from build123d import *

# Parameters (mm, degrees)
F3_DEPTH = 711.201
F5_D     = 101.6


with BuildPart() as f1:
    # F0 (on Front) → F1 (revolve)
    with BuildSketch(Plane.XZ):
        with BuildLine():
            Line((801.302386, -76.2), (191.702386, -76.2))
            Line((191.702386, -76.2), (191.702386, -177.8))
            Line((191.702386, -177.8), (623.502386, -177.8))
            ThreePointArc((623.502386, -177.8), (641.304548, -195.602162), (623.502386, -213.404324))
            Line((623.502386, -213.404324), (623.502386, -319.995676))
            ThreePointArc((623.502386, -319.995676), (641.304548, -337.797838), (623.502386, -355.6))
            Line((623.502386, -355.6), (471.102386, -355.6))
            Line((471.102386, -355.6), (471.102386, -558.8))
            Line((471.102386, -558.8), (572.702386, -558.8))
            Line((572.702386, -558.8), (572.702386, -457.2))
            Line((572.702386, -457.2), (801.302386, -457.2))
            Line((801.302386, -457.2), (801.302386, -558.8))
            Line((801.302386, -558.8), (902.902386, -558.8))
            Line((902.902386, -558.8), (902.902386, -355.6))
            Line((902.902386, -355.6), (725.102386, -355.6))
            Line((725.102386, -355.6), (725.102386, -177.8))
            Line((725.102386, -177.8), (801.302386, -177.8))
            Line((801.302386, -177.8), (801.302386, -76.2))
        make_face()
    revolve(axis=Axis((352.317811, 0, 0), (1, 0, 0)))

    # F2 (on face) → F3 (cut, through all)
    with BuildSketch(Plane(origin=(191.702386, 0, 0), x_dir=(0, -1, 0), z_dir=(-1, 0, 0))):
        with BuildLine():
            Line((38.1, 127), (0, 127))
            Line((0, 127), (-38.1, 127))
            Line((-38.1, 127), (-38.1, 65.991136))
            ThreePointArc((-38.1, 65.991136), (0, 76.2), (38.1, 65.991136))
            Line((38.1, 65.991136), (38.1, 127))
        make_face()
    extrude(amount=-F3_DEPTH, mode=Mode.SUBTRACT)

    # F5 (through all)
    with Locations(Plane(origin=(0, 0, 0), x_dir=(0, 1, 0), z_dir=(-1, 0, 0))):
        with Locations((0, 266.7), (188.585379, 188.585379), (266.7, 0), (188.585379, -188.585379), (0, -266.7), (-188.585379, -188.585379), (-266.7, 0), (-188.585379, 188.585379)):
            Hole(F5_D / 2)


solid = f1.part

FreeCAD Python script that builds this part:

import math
import FreeCAD as App
import Part
import Sketcher
Q = App.Units.Quantity

doc = App.newDocument("Part")
body = doc.addObject("PartDesign::Body", "Body")

sketch1 = body.newObject("Sketcher::SketchObject", "Sketch")
sketch1.AttachmentSupport = (doc.getObject("XZ_Plane"), [""])
sketch1.MapMode = "FlatFace"
sketch1.addGeometry([
    Part.LineSegment(App.Vector(801, -76, 0), App.Vector(192, -76, 0)),
    Part.LineSegment(App.Vector(192, -76, 0), App.Vector(192, -178, 0)),
    Part.LineSegment(App.Vector(192, -178, 0), App.Vector(624, -178, 0)),
    Part.ArcOfCircle(Part.Circle(App.Vector(624, -196, 0), App.Vector(0, 0, 1), 18), math.radians(-90), math.radians(90)),
    Part.LineSegment(App.Vector(624, -213, 0), App.Vector(624, -320, 0)),
    Part.ArcOfCircle(Part.Circle(App.Vector(624, -338, 0), App.Vector(0, 0, 1), 18), math.radians(-90), math.radians(90)),
    Part.LineSegment(App.Vector(624, -356, 0), App.Vector(471, -356, 0)),
    Part.LineSegment(App.Vector(471, -356, 0), App.Vector(471, -559, 0)),
    Part.LineSegment(App.Vector(471, -559, 0), App.Vector(573, -559, 0)),
    Part.LineSegment(App.Vector(573, -559, 0), App.Vector(573, -457, 0)),
    Part.LineSegment(App.Vector(573, -457, 0), App.Vector(801, -457, 0)),
    Part.LineSegment(App.Vector(801, -457, 0), App.Vector(801, -559, 0)),
    Part.LineSegment(App.Vector(801, -559, 0), App.Vector(903, -559, 0)),
    Part.LineSegment(App.Vector(903, -559, 0), App.Vector(903, -356, 0)),
    Part.LineSegment(App.Vector(903, -356, 0), App.Vector(725, -356, 0)),
    Part.LineSegment(App.Vector(725, -356, 0), App.Vector(725, -178, 0)),
    Part.LineSegment(App.Vector(725, -178, 0), App.Vector(801, -178, 0)),
    Part.LineSegment(App.Vector(801, -178, 0), App.Vector(801, -76, 0)),
], False)
sketch1.addConstraint([
    Sketcher.Constraint("Coincident", 0, 2, 1, 1),
    Sketcher.Constraint("Coincident", 1, 2, 2, 1),
    Sketcher.Constraint("Tangent", 2, 2, 3, 2),
    Sketcher.Constraint("Coincident", 3, 1, 4, 1),
    Sketcher.Constraint("Coincident", 4, 2, 5, 2),
    Sketcher.Constraint("Tangent", 5, 1, 6, 1),
    Sketcher.Constraint("Coincident", 6, 2, 7, 1),
    Sketcher.Constraint("Coincident", 7, 2, 8, 1),
    Sketcher.Constraint("Coincident", 8, 2, 9, 1),
    Sketcher.Constraint("Coincident", 9, 2, 10, 1),
    Sketcher.Constraint("Coincident", 10, 2, 11, 1),
    Sketcher.Constraint("Coincident", 11, 2, 12, 1),
    Sketcher.Constraint("Coincident", 12, 2, 13, 1),
    Sketcher.Constraint("Coincident", 13, 2, 14, 1),
    Sketcher.Constraint("Coincident", 14, 2, 15, 1),
    Sketcher.Constraint("Coincident", 15, 2, 16, 1),
    Sketcher.Constraint("Coincident", 16, 2, 17, 1),
    Sketcher.Constraint("Coincident", 17, 2, 0, 1),
    Sketcher.Constraint("Horizontal", 0),
    Sketcher.Constraint("Vertical", 1),
    Sketcher.Constraint("Horizontal", 2),
    Sketcher.Constraint("Vertical", 4),
    Sketcher.Constraint("Horizontal", 6),
    Sketcher.Constraint("Vertical", 7),
    Sketcher.Constraint("Horizontal", 8),
    Sketcher.Constraint("Vertical", 9),
    Sketcher.Constraint("Horizontal", 10),
    Sketcher.Constraint("Vertical", 11),
    Sketcher.Constraint("Horizontal", 12),
    Sketcher.Constraint("Vertical", 13),
    Sketcher.Constraint("Horizontal", 14),
    Sketcher.Constraint("Vertical", 15),
    Sketcher.Constraint("Horizontal", 16),
    Sketcher.Constraint("Vertical", 17),
    Sketcher.Constraint("Equal", 3, 5),
    Sketcher.Constraint("Horizontal", 8, 2, 11, 2),
    Sketcher.Constraint("Horizontal", 6, 2, 13, 2),
    Sketcher.Constraint("Horizontal", 2, 2, 15, 2),
    Sketcher.Constraint("Vertical", 3, 3, 5, 3),
    Sketcher.Constraint("Vertical", 2, 2, 3, 1),
    Sketcher.Constraint("Vertical", 11, 2, 16, 2),
    Sketcher.Constraint("Equal", 8, 12),
    Sketcher.Constraint("Equal", 12, 1),
    Sketcher.Constraint("Equal", 1, 9),
    Sketcher.Constraint("Equal", 14, 15),
    Sketcher.Constraint("DistanceX", 0, 2, 0, 1, Q("24 in")),
    Sketcher.Constraint("DistanceX", 2, 1, 2, 2, Q("17 in")),
    Sketcher.Constraint("DistanceX", 6, 2, 6, 1, Q("6 in")),
    Sketcher.Constraint("DistanceX", 8, 1, 8, 2, Q("4 in")),
    Sketcher.Constraint("DistanceX", 14, 2, 14, 1, Q("7 in")),
    Sketcher.Constraint("DistanceY", 7, 2, 7, 1, Q("8 in")),
    Sketcher.Constraint("DistanceY", 0, 2, -1, 1, Q("3 in")),
    Sketcher.Constraint("Radius", 3, 17.802162),
    Sketcher.Constraint("DistanceX", -1, 1, 3, 3, 623.502386),
])
revolution = body.newObject("PartDesign::Revolution", "Revolution")
revolution.Profile = sketch1
revolution.ReferenceAxis = (sketch1, ["H_Axis"])
revolution.Angle = 360

sketch2 = body.newObject("Sketcher::SketchObject", "Sketch001")
sketch2.AttachmentSupport = (doc.getObject("YZ_Plane"), [""])
sketch2.MapMode = "FlatFace"
sketch2.AttachmentOffset = App.Placement(App.Vector(0, 0, 191.702386), App.Rotation())
sketch2.addGeometry([
    Part.LineSegment(App.Vector(-38, 127, 0), App.Vector(38, 127, 0)),
    Part.LineSegment(App.Vector(38, 127, 0), App.Vector(38, 66, 0)),
    Part.ArcOfCircle(Part.Circle(App.Vector(0, 0, 0), App.Vector(0, 0, 1), 76), math.radians(60), math.radians(120)),
    Part.LineSegment(App.Vector(-38, 66, 0), App.Vector(-38, 127, 0)),
], False)
sketch2.addConstraint([
    Sketcher.Constraint("Coincident", 0, 2, 1, 1),
    Sketcher.Constraint("Coincident", 1, 2, 2, 1),
    Sketcher.Constraint("Coincident", 2, 2, 3, 1),
    Sketcher.Constraint("Coincident", 3, 2, 0, 1),
    Sketcher.Constraint("Horizontal", 0),
    Sketcher.Constraint("Vertical", 1),
    Sketcher.Constraint("Vertical", 3),
    Sketcher.Constraint("Coincident", 2, 3, -1, 1),
    Sketcher.Constraint("Horizontal", 1, 2, 2, 2),
    Sketcher.Constraint("Radius", 2, Q("3.0000001 in")),
    Sketcher.Constraint("DistanceX", 0, 1, 0, 2, Q("3 in")),
    Sketcher.Constraint("DistanceY", -1, 1, 0, 2, Q("5 in")),
])
pocket1 = body.newObject("PartDesign::Pocket", "Pocket")
pocket1.Profile = sketch2
pocket1.Type = "ThroughAll"
pocket1.Reversed = True

sketch3 = body.newObject("Sketcher::SketchObject", "Sketch002")
sketch3.AttachmentSupport = (doc.getObject("YZ_Plane"), [""])
sketch3.MapMode = "FlatFace"
sketch3.addGeometry([
    Part.Circle(App.Vector(0, -267, 0), App.Vector(0, 0, 1), 51),
    Part.Circle(App.Vector(189, -189, 0), App.Vector(0, 0, 1), 51),
    Part.Circle(App.Vector(267, 0, 0), App.Vector(0, 0, 1), 51),
    Part.Circle(App.Vector(189, 189, 0), App.Vector(0, 0, 1), 51),
    Part.Circle(App.Vector(0, 267, 0), App.Vector(0, 0, 1), 51),
    Part.Circle(App.Vector(-189, 189, 0), App.Vector(0, 0, 1), 51),
    Part.Circle(App.Vector(-267, 0, 0), App.Vector(0, 0, 1), 51),
    Part.Circle(App.Vector(-189, -189, 0), App.Vector(0, 0, 1), 51),
], False)
sketch3.addConstraint([
    Sketcher.Constraint("Equal", 0, 1),
    Sketcher.Constraint("Equal", 1, 2),
    Sketcher.Constraint("Equal", 2, 3),
    Sketcher.Constraint("Equal", 3, 4),
    Sketcher.Constraint("Equal", 4, 5),
    Sketcher.Constraint("Equal", 5, 6),
    Sketcher.Constraint("Equal", 6, 7),
    Sketcher.Constraint("Symmetric", 0, 3, 4, 3, -1, 1),
    Sketcher.Constraint("Symmetric", 1, 3, 5, 3, -1, 1),
    Sketcher.Constraint("Symmetric", 2, 3, 6, 3, -1, 1),
    Sketcher.Constraint("Symmetric", 3, 3, 7, 3, -1, 1),
    Sketcher.Constraint("Symmetric", 3, 3, 5, 3, -2),
    Sketcher.Constraint("PointOnObject", 0, 3, -2),
    Sketcher.Constraint("PointOnObject", 2, 3, -1),
    Sketcher.Constraint("Diameter", 0, Q("4 in")),
    Sketcher.Constraint("DistanceY", 0, 3, 4, 3, Q("21 in")),
    Sketcher.Constraint("DistanceX", -1, 1, 2, 3, Q("10.5 in")),
    Sketcher.Constraint("DistanceX", -1, 1, 1, 3, 188.585379),
    Sketcher.Constraint("DistanceY", 1, 3, -1, 1, 188.585379),
])
doc.recompute()
hole = body.newObject("PartDesign::Hole", "Hole")
hole.Profile = sketch3
hole.ThreadType = "None"
hole.Diameter = Q("4 in")
hole.DepthType = "ThroughAll"
hole.Reversed = True

doc.recompute()
